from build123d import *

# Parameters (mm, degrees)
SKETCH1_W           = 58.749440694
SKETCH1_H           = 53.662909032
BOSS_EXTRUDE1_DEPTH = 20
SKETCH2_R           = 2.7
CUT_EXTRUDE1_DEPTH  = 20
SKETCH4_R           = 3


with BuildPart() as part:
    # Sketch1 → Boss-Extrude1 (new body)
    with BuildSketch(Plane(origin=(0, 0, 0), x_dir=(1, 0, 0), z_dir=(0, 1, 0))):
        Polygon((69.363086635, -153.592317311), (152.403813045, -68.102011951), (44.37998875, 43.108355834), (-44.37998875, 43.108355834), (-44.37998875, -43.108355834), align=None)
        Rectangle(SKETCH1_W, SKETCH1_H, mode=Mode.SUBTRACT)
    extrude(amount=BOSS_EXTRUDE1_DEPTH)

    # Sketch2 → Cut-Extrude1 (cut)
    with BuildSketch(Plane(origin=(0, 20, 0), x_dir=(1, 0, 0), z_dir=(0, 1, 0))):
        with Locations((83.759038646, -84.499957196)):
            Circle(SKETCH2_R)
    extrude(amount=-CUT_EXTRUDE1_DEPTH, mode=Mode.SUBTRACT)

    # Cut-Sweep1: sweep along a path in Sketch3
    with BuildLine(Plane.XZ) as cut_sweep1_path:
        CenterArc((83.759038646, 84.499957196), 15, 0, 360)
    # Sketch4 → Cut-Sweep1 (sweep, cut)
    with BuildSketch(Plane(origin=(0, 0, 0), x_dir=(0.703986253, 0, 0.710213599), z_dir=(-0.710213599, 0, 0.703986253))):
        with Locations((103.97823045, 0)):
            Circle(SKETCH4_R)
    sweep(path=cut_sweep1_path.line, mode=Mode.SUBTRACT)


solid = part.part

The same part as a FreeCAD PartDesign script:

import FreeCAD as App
import Part
import Sketcher

doc = App.newDocument("Part")
body = doc.addObject("PartDesign::Body", "Body")

sketch1 = doc.addObject("Sketcher::SketchObject", "Sketch")
body.addObject(sketch1)
sketch1.AttachmentSupport = (doc.XZ_Plane, [""])
sketch1.MapMode = "FlatFace"
sketch1.addGeometry([
    Part.LineSegment(App.Vector(69, 154, 0), App.Vector(152, 68, 0)),
    Part.LineSegment(App.Vector(152, 68, 0), App.Vector(44, -43, 0)),
    Part.LineSegment(App.Vector(44, -43, 0), App.Vector(-44, -43, 0)),
    Part.LineSegment(App.Vector(-44, -43, 0), App.Vector(-44, 43, 0)),
    Part.LineSegment(App.Vector(-44, 43, 0), App.Vector(69, 154, 0)),
    Part.LineSegment(App.Vector(29, 27, 0), App.Vector(-29, 27, 0)),
    Part.LineSegment(App.Vector(-29, 27, 0), App.Vector(-29, -27, 0)),
    Part.LineSegment(App.Vector(-29, -27, 0), App.Vector(29, -27, 0)),
    Part.LineSegment(App.Vector(29, -27, 0), App.Vector(29, 27, 0)),
], False)
sketch1.addConstraint([
    Sketcher.Constraint("Coincident", 0, 2, 1, 1),
    Sketcher.Constraint("Coincident", 1, 2, 2, 1),
    Sketcher.Constraint("Coincident", 2, 2, 3, 1),
    Sketcher.Constraint("Coincident", 3, 2, 4, 1),
    Sketcher.Constraint("Coincident", 4, 2, 0, 1),
    Sketcher.Constraint("Coincident", 5, 2, 6, 1),
    Sketcher.Constraint("Coincident", 6, 2, 7, 1),
    Sketcher.Constraint("Coincident", 7, 2, 8, 1),
    Sketcher.Constraint("Coincident", 8, 2, 5, 1),
    Sketcher.Constraint("Horizontal", 2),
    Sketcher.Constraint("Vertical", 3),
    Sketcher.Constraint("Horizontal", 5),
    Sketcher.Constraint("Vertical", 6),
    Sketcher.Constraint("Horizontal", 7),
    Sketcher.Constraint("Vertical", 8),
    Sketcher.Constraint("Symmetric", 1, 2, 3, 2, -1, 1),
    Sketcher.Constraint("Symmetric", 5, 2, 7, 2, -1, 1),
    Sketcher.Constraint("Perpendicular", 0, 4),
    Sketcher.Constraint("DistanceX", 5, 2, 5, 1, 58.749441),
    Sketcher.Constraint("DistanceY", 3, 1, 3, 2, 86.216712),
    Sketcher.Constraint("DistanceY", 6, 2, 6, 1, 53.662909),
    Sketcher.Constraint("DistanceX", 2, 2, 0, 2, 196.783802),
    Sketcher.Constraint("Distance", 1, 155.038358),
    Sketcher.Constraint("DistanceX", 2, 2, 2, 1, 88.759978),
    Sketcher.Constraint("DistanceY", 3, 2, 4, 2, 110.483961),
])
pad1 = doc.addObject("PartDesign::Pad", "Pad")
body.addObject(pad1)
pad1.Profile = sketch1
pad1.Length = 20
pad1.Reversed = True

sketch2 = doc.addObject("Sketcher::SketchObject", "Sketch001")
body.addObject(sketch2)
sketch2.AttachmentSupport = (doc.XZ_Plane, [""])
sketch2.MapMode = "FlatFace"
sketch2.AttachmentOffset = App.Placement(App.Vector(0, 0, -20), App.Rotation())
sketch2.addGeometry(Part.Circle(App.Vector(83.8, 84.5, 0), App.Vector(0, 0, 1), 2.7), False)
sketch2.addConstraint([
    Sketcher.Constraint("Diameter", 0, 5.4),
    Sketcher.Constraint("DistanceX", -1, 1, 0, 3, 83.759039),
    Sketcher.Constraint("DistanceY", -1, 1, 0, 3, 84.499957),
])
pocket1 = doc.addObject("PartDesign::Pocket", "Pocket")
body.addObject(pocket1)
pocket1.Profile = sketch2
pocket1.Length = 20
pocket1.Reversed = True

sketch3 = doc.addObject("Sketcher::SketchObject", "Sketch002")
body.addObject(sketch3)
sketch3.Placement = App.Placement(App.Vector(0, 0, 0), App.Rotation(App.Vector(0.703986253, 0, 0.710213599), App.Vector(0, 1.000000001, 0), App.Vector(-0.710213599, 0, 0.703986253), "ZXY"))
sketch3.addGeometry(Part.Circle(App.Vector(104, 0, 0), App.Vector(0, 0, 1), 3), False)
sketch3.addConstraint([
    Sketcher.Constraint("PointOnObject", 0, 3, -1),
    Sketcher.Constraint("Diameter", 0, 6.0),
    Sketcher.Constraint("DistanceX", -1, 1, 0, 3, 103.978231),
])

sketch4 = doc.addObject("Sketcher::SketchObject", "Sketch003")
body.addObject(sketch4)
sketch4.AttachmentSupport = (doc.XZ_Plane, [""])
sketch4.MapMode = "FlatFace"
sketch4.addGeometry(Part.Circle(App.Vector(84, 84, 0), App.Vector(0, 0, 1), 15), False)
sketch4.addConstraint([
    Sketcher.Constraint("Diameter", 0, 30.0),
    Sketcher.Constraint("DistanceX", -1, 1, 0, 3, 83.759039),
    Sketcher.Constraint("DistanceY", -1, 1, 0, 3, 84.499957),
])
doc.recompute()

subtractivepipe = doc.addObject("PartDesign::SubtractivePipe", "SubtractivePipe")
body.addObject(subtractivepipe)
subtractivepipe.Profile = sketch3
subtractivepipe.Spine = (sketch4, ["Edge1"])

doc.recompute()
